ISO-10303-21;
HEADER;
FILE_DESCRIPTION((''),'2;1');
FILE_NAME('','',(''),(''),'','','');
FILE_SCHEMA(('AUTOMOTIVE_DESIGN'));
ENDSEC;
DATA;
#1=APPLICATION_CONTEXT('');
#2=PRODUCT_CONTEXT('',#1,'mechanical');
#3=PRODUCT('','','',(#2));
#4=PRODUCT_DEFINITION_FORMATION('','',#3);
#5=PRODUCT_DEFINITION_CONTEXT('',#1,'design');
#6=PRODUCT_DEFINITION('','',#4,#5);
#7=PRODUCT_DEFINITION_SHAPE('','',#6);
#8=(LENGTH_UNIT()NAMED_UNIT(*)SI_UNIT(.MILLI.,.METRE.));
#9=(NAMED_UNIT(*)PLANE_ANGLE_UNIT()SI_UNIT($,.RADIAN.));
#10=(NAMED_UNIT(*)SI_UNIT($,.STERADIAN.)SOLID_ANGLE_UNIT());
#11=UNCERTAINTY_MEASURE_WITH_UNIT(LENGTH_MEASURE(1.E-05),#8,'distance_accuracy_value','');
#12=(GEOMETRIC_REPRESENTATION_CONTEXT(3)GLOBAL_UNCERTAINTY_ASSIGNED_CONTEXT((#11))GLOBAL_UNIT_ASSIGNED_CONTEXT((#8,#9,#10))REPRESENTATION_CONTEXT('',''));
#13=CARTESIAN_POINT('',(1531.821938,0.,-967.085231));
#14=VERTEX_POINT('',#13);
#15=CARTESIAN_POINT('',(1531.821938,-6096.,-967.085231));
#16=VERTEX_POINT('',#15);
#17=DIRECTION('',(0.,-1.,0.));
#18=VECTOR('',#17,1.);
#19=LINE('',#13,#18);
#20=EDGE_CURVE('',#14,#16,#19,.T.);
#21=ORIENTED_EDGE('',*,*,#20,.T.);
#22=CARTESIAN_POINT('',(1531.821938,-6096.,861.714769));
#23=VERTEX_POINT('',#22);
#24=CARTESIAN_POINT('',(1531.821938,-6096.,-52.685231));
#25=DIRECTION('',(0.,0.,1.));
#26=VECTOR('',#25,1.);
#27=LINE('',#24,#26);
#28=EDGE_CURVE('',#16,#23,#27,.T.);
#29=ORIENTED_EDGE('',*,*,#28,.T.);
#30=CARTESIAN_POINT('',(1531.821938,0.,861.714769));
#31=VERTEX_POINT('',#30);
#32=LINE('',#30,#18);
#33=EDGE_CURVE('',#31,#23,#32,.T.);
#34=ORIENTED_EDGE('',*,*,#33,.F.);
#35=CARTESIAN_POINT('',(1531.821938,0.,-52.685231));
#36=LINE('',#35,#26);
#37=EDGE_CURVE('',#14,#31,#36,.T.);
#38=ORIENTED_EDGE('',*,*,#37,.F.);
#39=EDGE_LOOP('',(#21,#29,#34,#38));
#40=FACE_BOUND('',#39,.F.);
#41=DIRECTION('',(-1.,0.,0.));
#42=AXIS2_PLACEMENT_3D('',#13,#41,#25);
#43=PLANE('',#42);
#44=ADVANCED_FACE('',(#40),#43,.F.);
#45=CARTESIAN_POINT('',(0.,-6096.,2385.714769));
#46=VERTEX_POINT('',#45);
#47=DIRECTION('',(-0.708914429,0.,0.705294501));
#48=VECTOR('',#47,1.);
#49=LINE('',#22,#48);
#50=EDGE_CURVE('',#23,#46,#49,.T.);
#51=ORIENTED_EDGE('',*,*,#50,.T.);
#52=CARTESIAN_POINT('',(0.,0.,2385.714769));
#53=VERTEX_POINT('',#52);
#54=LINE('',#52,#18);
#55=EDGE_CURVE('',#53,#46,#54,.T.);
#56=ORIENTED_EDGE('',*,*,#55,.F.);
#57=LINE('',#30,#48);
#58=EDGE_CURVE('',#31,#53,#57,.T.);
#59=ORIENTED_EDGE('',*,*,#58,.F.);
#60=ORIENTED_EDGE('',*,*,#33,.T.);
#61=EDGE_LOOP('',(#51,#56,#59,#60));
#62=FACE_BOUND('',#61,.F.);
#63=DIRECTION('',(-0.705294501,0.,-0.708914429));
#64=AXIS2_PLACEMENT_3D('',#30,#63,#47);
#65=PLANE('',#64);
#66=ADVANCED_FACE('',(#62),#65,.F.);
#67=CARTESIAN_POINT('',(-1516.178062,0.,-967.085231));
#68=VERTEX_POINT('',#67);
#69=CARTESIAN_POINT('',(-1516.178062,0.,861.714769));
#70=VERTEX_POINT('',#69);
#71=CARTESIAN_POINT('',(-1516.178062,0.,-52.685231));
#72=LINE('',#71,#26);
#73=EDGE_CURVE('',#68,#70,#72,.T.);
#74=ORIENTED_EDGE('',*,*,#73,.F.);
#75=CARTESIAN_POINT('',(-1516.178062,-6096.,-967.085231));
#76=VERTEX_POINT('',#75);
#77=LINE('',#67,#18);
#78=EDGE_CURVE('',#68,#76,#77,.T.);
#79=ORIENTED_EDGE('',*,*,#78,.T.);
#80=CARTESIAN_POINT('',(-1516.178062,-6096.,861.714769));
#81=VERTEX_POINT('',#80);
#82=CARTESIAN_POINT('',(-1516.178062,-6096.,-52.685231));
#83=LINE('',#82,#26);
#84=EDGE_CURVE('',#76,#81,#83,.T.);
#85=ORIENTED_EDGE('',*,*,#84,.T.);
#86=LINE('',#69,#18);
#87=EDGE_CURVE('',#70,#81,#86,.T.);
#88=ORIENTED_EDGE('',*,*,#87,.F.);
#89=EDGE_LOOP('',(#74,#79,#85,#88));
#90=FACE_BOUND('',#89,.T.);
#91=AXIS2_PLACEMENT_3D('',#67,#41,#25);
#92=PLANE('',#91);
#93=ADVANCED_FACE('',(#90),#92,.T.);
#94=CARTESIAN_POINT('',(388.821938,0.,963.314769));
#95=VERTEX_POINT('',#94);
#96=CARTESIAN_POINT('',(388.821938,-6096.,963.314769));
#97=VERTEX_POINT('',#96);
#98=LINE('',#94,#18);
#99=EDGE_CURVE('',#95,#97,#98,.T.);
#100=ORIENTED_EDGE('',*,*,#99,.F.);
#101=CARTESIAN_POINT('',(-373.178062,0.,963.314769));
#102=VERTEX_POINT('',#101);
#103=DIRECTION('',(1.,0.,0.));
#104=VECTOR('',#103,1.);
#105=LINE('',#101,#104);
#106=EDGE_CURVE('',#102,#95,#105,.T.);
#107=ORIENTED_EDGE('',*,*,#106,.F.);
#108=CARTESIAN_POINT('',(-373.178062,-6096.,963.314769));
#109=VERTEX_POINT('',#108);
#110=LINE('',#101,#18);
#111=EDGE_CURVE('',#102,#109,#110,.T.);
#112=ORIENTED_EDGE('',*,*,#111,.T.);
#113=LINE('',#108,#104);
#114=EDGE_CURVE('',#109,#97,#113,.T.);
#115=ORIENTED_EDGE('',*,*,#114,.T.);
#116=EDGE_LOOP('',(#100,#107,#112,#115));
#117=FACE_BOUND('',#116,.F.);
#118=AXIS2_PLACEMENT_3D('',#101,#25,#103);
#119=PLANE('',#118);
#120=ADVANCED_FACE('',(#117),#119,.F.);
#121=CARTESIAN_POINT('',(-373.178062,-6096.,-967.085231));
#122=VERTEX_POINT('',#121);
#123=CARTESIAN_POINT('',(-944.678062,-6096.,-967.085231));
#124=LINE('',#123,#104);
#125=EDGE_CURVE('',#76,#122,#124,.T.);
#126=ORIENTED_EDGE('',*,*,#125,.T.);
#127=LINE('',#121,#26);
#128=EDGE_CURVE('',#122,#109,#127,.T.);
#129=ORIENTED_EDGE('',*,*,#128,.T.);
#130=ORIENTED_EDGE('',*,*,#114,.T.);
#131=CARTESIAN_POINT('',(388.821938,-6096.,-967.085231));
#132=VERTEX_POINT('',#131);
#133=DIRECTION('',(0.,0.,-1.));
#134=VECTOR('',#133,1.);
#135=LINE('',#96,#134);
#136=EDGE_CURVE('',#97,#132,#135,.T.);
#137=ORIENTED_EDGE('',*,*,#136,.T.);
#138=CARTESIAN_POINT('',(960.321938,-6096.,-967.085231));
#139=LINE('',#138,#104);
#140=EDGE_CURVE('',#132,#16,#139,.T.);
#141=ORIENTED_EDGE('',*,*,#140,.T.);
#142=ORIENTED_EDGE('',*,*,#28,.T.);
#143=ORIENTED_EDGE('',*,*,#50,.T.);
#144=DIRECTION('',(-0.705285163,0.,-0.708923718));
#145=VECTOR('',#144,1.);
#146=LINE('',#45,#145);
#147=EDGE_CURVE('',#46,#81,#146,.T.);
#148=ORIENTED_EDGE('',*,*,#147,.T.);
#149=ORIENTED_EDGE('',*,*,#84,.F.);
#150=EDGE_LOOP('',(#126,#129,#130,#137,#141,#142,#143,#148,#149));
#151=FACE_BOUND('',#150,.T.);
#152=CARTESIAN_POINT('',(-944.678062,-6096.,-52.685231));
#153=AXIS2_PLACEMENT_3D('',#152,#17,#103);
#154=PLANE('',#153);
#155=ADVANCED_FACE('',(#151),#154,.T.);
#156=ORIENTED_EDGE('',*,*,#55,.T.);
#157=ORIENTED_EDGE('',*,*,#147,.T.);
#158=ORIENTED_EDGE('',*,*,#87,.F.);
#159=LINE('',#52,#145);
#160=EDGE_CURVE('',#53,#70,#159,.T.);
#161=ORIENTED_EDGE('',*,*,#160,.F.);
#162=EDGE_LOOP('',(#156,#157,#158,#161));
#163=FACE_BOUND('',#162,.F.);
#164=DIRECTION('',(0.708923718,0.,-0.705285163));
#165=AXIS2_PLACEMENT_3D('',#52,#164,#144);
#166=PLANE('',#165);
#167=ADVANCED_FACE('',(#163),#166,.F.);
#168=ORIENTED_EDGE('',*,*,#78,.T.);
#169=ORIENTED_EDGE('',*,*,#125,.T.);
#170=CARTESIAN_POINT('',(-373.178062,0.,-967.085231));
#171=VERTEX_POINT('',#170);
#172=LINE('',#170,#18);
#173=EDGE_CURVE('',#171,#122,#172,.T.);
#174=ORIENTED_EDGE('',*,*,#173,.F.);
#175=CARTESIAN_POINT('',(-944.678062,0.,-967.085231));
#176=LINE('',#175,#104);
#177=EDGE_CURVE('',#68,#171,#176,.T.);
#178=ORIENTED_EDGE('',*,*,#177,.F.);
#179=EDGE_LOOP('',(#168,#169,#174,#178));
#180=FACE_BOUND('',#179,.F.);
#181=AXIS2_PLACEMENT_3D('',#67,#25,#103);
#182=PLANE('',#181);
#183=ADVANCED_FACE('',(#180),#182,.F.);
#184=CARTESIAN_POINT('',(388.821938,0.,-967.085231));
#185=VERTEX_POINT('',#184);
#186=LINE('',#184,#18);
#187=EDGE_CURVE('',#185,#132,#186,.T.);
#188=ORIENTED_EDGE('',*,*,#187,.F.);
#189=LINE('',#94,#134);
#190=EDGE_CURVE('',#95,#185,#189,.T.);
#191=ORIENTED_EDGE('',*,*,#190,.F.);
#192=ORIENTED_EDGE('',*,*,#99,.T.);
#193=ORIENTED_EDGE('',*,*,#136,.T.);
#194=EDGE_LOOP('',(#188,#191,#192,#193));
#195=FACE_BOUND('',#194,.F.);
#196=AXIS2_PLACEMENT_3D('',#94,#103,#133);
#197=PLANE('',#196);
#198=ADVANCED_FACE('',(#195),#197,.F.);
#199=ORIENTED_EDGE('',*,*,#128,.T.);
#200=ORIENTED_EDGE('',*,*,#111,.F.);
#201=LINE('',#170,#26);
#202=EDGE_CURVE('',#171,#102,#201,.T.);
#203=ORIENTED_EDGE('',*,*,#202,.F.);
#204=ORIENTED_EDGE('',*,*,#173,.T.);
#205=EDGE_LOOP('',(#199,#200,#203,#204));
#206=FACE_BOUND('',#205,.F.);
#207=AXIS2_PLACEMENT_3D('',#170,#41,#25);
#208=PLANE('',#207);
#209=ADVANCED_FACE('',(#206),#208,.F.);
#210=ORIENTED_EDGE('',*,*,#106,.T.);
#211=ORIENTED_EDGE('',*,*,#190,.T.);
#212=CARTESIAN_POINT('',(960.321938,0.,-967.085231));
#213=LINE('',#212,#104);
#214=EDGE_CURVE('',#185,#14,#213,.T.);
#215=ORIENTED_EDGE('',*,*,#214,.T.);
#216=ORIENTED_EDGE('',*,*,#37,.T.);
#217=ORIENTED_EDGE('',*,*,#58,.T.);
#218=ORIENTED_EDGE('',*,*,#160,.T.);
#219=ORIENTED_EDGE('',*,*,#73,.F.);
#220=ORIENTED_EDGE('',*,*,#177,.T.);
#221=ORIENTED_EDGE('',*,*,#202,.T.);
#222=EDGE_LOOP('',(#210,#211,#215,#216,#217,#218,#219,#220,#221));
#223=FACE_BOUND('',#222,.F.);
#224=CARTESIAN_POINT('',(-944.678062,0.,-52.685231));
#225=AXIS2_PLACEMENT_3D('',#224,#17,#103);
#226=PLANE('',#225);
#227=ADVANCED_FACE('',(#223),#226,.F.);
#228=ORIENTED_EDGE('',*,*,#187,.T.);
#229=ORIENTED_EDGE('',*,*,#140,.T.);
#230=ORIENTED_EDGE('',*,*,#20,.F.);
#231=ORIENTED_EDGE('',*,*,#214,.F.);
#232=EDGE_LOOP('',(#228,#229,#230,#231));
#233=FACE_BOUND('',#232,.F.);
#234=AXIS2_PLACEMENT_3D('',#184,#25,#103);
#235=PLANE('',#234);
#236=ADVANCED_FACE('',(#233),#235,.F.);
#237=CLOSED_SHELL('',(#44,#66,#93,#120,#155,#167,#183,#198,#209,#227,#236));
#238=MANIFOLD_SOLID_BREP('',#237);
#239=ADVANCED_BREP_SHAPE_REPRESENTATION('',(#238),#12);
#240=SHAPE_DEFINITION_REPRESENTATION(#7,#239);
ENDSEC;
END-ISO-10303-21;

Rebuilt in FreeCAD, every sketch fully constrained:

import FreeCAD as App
import Part
import Sketcher
Q = App.Units.Quantity


def add_polygon(sketch, points):
    """Adds a closed chain of lines whose ends are joined by coincident constraints."""
    first, n = sketch.GeometryCount, len(points)
    for a, b in zip(points, points[1:] + points[:1]):
        sketch.addGeometry(Part.LineSegment(App.Vector(*a, 0), App.Vector(*b, 0)), False)
    for i in range(n):
        sketch.addConstraint(Sketcher.Constraint("Coincident", first + i, 2, first + (i + 1) % n, 1))

doc = App.newDocument("Part")
body = doc.addObject("PartDesign::Body", "Body")

sketch1 = body.newObject("Sketcher::SketchObject", "Sketch")
sketch1.AttachmentSupport = (doc.getObject("XZ_Plane"), [""])
sketch1.MapMode = "FlatFace"
add_polygon(sketch1, [(-1516, 862), (-1516, -967), (-373, -967), (-373, 963), (389, 963), (389, -967), (1532, -967), (1532, 862), (0, 2386)])
sketch1.addConstraint([
    Sketcher.Constraint("Vertical", 0),
    Sketcher.Constraint("Horizontal", 1),
    Sketcher.Constraint("Vertical", 2),
    Sketcher.Constraint("Horizontal", 3),
    Sketcher.Constraint("Vertical", 4),
    Sketcher.Constraint("Horizontal", 5),
    Sketcher.Constraint("Vertical", 6),
    Sketcher.Constraint("PointOnObject", 7, 2, -2),
    Sketcher.Constraint("Horizontal", 1, 2, 4, 2),
    Sketcher.Constraint("Horizontal", 6, 2, 8, 2),
    Sketcher.Constraint("Equal", 1, 5),
    Sketcher.Constraint("DistanceX", 1, 1, 1, 2, Q("45 in")),
    Sketcher.Constraint("DistanceX", 3, 1, 3, 2, Q("30 in")),
    Sketcher.Constraint("DistanceY", 0, 2, 0, 1, Q("72 in")),
    Sketcher.Constraint("DistanceY", 2, 1, 2, 2, Q("76 in")),
    Sketcher.Constraint("DistanceY", 2, 2, 7, 2, Q("56 in")),
    Sketcher.Constraint("Distance", 8, 2149.737639),
    Sketcher.Constraint("DistanceY", 0, 2, -1, 1, 967.085231),
])
pad1 = body.newObject("PartDesign::Pad", "Pad")
pad1.Profile = sketch1
pad1.Length = Q("240 in")

doc.recompute()
